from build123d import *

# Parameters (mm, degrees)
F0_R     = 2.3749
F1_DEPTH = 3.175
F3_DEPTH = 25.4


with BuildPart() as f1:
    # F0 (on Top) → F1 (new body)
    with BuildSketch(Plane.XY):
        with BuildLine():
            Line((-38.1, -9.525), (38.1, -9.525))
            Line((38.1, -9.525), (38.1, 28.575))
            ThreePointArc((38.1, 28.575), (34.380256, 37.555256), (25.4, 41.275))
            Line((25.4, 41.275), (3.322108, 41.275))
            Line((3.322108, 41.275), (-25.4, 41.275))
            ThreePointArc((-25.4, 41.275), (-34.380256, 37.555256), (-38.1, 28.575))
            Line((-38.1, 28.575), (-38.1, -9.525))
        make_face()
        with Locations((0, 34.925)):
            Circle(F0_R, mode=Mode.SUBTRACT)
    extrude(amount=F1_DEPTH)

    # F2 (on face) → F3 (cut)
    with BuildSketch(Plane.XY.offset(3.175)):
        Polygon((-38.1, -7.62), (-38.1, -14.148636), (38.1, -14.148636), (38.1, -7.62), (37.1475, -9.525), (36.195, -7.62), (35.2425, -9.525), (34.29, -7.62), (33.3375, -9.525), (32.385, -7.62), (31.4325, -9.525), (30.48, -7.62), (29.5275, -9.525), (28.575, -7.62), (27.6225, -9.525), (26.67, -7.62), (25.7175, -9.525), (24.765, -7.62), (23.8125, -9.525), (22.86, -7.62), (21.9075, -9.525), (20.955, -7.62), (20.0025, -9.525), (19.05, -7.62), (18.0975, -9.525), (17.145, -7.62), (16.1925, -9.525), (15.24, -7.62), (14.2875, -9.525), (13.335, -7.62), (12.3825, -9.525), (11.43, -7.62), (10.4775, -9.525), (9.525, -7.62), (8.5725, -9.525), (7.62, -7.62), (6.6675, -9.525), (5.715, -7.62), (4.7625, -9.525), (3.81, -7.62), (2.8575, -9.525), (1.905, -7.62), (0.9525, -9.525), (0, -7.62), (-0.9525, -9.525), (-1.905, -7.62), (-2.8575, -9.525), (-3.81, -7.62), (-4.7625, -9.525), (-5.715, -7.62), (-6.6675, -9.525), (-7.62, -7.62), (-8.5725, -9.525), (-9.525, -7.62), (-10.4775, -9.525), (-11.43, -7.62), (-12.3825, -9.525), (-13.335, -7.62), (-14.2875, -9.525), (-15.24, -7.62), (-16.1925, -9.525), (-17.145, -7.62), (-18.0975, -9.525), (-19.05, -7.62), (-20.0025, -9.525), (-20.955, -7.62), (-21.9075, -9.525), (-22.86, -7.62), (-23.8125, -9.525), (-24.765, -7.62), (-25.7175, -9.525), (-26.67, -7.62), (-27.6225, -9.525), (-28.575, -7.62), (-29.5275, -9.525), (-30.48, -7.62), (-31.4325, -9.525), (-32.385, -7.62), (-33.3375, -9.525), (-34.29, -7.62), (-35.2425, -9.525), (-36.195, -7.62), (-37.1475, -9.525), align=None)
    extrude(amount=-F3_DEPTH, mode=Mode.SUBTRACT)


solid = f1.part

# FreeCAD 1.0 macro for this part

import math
import FreeCAD as App
import Part
import Sketcher

V = App.Vector
Q = App.Units.Quantity


def add_polygon(sketch, points):
    """Adds a closed chain of lines whose ends are joined by coincident constraints."""
    first, n = sketch.GeometryCount, len(points)
    for a, b in zip(points, points[1:] + points[:1]):
        sketch.addGeometry(Part.LineSegment(App.Vector(*a, 0), App.Vector(*b, 0)), False)
    for i in range(n):
        sketch.addConstraint(Sketcher.Constraint("Coincident", first + i, 2, first + (i + 1) % n, 1))

doc = App.newDocument("Part")
params = doc.addObject("Spreadsheet::Sheet", "Params")
for row, (alias, value) in enumerate([
    ("sketch1_radius", "0.5 in"),
    ("sketch1_width", "3 in"),
    ("sketch1_diameter", "0.187 in"),
    ("sketch1_height", "1.5 in"),
    ("pad1_length", "0.125 in"),
    ("sketch2_width", "3 in"),
    ("pocket1_length", "1 in"),
], start=1):
    params.set(f"A{row}", alias)
    params.set(f"B{row}", "=" + value)
    params.setAlias(f"B{row}", alias)

body = doc.addObject("PartDesign::Body", "Body")

sketch1 = doc.addObject("Sketcher::SketchObject", "Sketch")
body.addObject(sketch1)
sketch1.AttachmentSupport = (doc.XY_Plane, [""])
sketch1.MapMode = "FlatFace"
sketch1.addGeometry([
    Part.LineSegment(V(-38.1, -9.5, 0), V(38.1, -9.5, 0)),
    Part.LineSegment(V(38.1, -9.5, 0), V(38.1, 28.6, 0)),
    Part.ArcOfCircle(Part.Circle(V(25.4, 28.6, 0), V(0, 0, 1), 12.7), math.radians(0), math.radians(90)),
    Part.LineSegment(V(25.4, 41.3, 0), V(-25.4, 41.3, 0)),
    Part.ArcOfCircle(Part.Circle(V(-25.4, 28.6, 0), V(0, 0, 1), 12.7), math.radians(90), math.radians(180)),
    Part.LineSegment(V(-38.1, 28.6, 0), V(-38.1, -9.5, 0)),
    Part.Circle(V(0, 34.9, 0), V(0, 0, 1), 2.4),
], False)
sketch1.addConstraint([
    Sketcher.Constraint("Coincident", 0, 2, 1, 1),
    Sketcher.Constraint("Tangent", 1, 2, 2, 1),
    Sketcher.Constraint("Tangent", 2, 2, 3, 1),
    Sketcher.Constraint("Tangent", 3, 2, 4, 1),
    Sketcher.Constraint("Tangent", 4, 2, 5, 1),
    Sketcher.Constraint("Coincident", 5, 2, 0, 1),
    Sketcher.Constraint("Horizontal", 0),
    Sketcher.Constraint("Vertical", 1),
    Sketcher.Constraint("Horizontal", 3),
    Sketcher.Constraint("Vertical", 5),
    Sketcher.Constraint("Equal", 2, 4),
    Sketcher.Constraint("PointOnObject", 6, 3, -2),
    Sketcher.Constraint("Radius", 2, Q("0.5 in")),
    Sketcher.Constraint("DistanceX", 0, 1, 0, 2, Q("3 in")),
    Sketcher.Constraint("Diameter", 6, Q("0.187 in")),
    Sketcher.Constraint("DistanceY", 1, 1, 1, 2, Q("1.5 in")),
    Sketcher.Constraint("DistanceX", -1, 1, 2, 3, Q("1 in")),
    Sketcher.Constraint("DistanceY", 2, 3, 6, 3, Q("0.25 in")),
    Sketcher.Constraint("DistanceY", -1, 1, 2, 3, Q("1.125 in")),
])
sketch1.setExpression("Constraints[12]", "Params.sketch1_radius")
sketch1.setExpression("Constraints[13]", "Params.sketch1_width")
sketch1.setExpression("Constraints[14]", "Params.sketch1_diameter")
sketch1.setExpression("Constraints[15]", "Params.sketch1_height")
pad1 = doc.addObject("PartDesign::Pad", "Pad")
body.addObject(pad1)
pad1.Profile = sketch1
pad1.setExpression("Length", "Params.pad1_length")

sketch2 = doc.addObject("Sketcher::SketchObject", "Sketch001")
body.addObject(sketch2)
sketch2.AttachmentSupport = (doc.XY_Plane, [""])
sketch2.MapMode = "FlatFace"
sketch2.AttachmentOffset = App.Placement(V(0, 0, 0.125 * 25.4), App.Rotation())
add_polygon(sketch2, [(-38.1, -7.6), (-38.1, -14.1), (38.1, -14.1), (38.1, -7.6), (37.1, -9.5), (36.2, -7.6), (35.2, -9.5), (34.3, -7.6), (33.3, -9.5), (32.4, -7.6), (31.4, -9.5), (30.5, -7.6), (29.5, -9.5), (28.6, -7.6), (27.6, -9.5), (26.7, -7.6), (25.7, -9.5), (24.8, -7.6), (23.8, -9.5), (22.9, -7.6), (21.9, -9.5), (21, -7.6), (20, -9.5), (19.1, -7.6), (18.1, -9.5), (17.1, -7.6), (16.2, -9.5), (15.2, -7.6), (14.3, -9.5), (13.3, -7.6), (12.4, -9.5), (11.4, -7.6), (10.5, -9.5), (9.5, -7.6), (8.6, -9.5), (7.6, -7.6), (6.7, -9.5), (5.7, -7.6), (4.8, -9.5), (3.8, -7.6), (2.9, -9.5), (1.9, -7.6), (1, -9.5), (0, -7.6), (-1, -9.5), (-1.9, -7.6), (-2.9, -9.5), (-3.8, -7.6), (-4.8, -9.5), (-5.7, -7.6), (-6.7, -9.5), (-7.6, -7.6), (-8.6, -9.5), (-9.5, -7.6), (-10.5, -9.5), (-11.4, -7.6), (-12.4, -9.5), (-13.3, -7.6), (-14.3, -9.5), (-15.2, -7.6), (-16.2, -9.5), (-17.1, -7.6), (-18.1, -9.5), (-19.1, -7.6), (-20, -9.5), (-21, -7.6), (-21.9, -9.5), (-22.9, -7.6), (-23.8, -9.5), (-24.8, -7.6), (-25.7, -9.5), (-26.7, -7.6), (-27.6, -9.5), (-28.6, -7.6), (-29.5, -9.5), (-30.5, -7.6), (-31.4, -9.5), (-32.4, -7.6), (-33.3, -9.5), (-34.3, -7.6), (-35.2, -9.5), (-36.2, -7.6), (-37.1, -9.5)])
sketch2.addConstraint([
    Sketcher.Constraint("Vertical", 0),
    Sketcher.Constraint("Horizontal", 1),
    Sketcher.Constraint("Vertical", 2),
    Sketcher.Constraint("Symmetric", 41, 2, 43, 2, -2),
    Sketcher.Constraint("Symmetric", 40, 2, 44, 2, -2),
    Sketcher.Constraint("Symmetric", 39, 2, 45, 2, -2),
    Sketcher.Constraint("Symmetric", 38, 2, 46, 2, -2),
    Sketcher.Constraint("Symmetric", 37, 2, 47, 2, -2),
    Sketcher.Constraint("Symmetric", 36, 2, 48, 2, -2),
    Sketcher.Constraint("Symmetric", 35, 2, 49, 2, -2),
    Sketcher.Constraint("Symmetric", 34, 2, 50, 2, -2),
    Sketcher.Constraint("Symmetric", 33, 2, 51, 2, -2),
    Sketcher.Constraint("Symmetric", 32, 2, 52, 2, -2),
    Sketcher.Constraint("Symmetric", 31, 2, 53, 2, -2),
    Sketcher.Constraint("Symmetric", 30, 2, 54, 2, -2),
    Sketcher.Constraint("Symmetric", 29, 2, 55, 2, -2),
    Sketcher.Constraint("Symmetric", 28, 2, 56, 2, -2),
    Sketcher.Constraint("Symmetric", 27, 2, 57, 2, -2),
    Sketcher.Constraint("Symmetric", 26, 2, 58, 2, -2),
    Sketcher.Constraint("Symmetric", 25, 2, 59, 2, -2),
    Sketcher.Constraint("Symmetric", 24, 2, 60, 2, -2),
    Sketcher.Constraint("Symmetric", 23, 2, 61, 2, -2),
    Sketcher.Constraint("Symmetric", 22, 2, 62, 2, -2),
    Sketcher.Constraint("Symmetric", 21, 2, 63, 2, -2),
    Sketcher.Constraint("Symmetric", 20, 2, 64, 2, -2),
    Sketcher.Constraint("Symmetric", 19, 2, 65, 2, -2),
    Sketcher.Constraint("Symmetric", 18, 2, 66, 2, -2),
    Sketcher.Constraint("Symmetric", 17, 2, 67, 2, -2),
    Sketcher.Constraint("Symmetric", 16, 2, 68, 2, -2),
    Sketcher.Constraint("Symmetric", 15, 2, 69, 2, -2),
    Sketcher.Constraint("Symmetric", 14, 2, 70, 2, -2),
    Sketcher.Constraint("Symmetric", 13, 2, 71, 2, -2),
    Sketcher.Constraint("Symmetric", 12, 2, 72, 2, -2),
    Sketcher.Constraint("Symmetric", 11, 2, 73, 2, -2),
    Sketcher.Constraint("Symmetric", 10, 2, 74, 2, -2),
    Sketcher.Constraint("Symmetric", 9, 2, 75, 2, -2),
    Sketcher.Constraint("Symmetric", 8, 2, 76, 2, -2),
    Sketcher.Constraint("Symmetric", 7, 2, 77, 2, -2),
    Sketcher.Constraint("Symmetric", 6, 2, 78, 2, -2),
    Sketcher.Constraint("Symmetric", 5, 2, 79, 2, -2),
    Sketcher.Constraint("Symmetric", 4, 2, 80, 2, -2),
    Sketcher.Constraint("Symmetric", 3, 2, 81, 2, -2),
    Sketcher.Constraint("Symmetric", 2, 2, 82, 2, -2),
    Sketcher.Constraint("PointOnObject", 42, 2, -2),
    Sketcher.Constraint("Parallel", 3, 5),
    Sketcher.Constraint("Parallel", 4, 6),
    Sketcher.Constraint("Parallel", 5, 7),
    Sketcher.Constraint("Parallel", 6, 8),
    Sketcher.Constraint("Parallel", 7, 9),
    Sketcher.Constraint("Parallel", 8, 10),
    Sketcher.Constraint("Parallel", 9, 11),
    Sketcher.Constraint("Parallel", 10, 12),
    Sketcher.Constraint("Parallel", 11, 13),
    Sketcher.Constraint("Parallel", 12, 14),
    Sketcher.Constraint("Parallel", 13, 15),
    Sketcher.Constraint("Parallel", 14, 16),
    Sketcher.Constraint("Parallel", 15, 17),
    Sketcher.Constraint("Parallel", 16, 18),
    Sketcher.Constraint("Parallel", 17, 19),
    Sketcher.Constraint("Parallel", 18, 20),
    Sketcher.Constraint("Parallel", 19, 21),
    Sketcher.Constraint("Parallel", 20, 22),
    Sketcher.Constraint("Parallel", 21, 23),
    Sketcher.Constraint("Parallel", 22, 24),
    Sketcher.Constraint("Parallel", 23, 25),
    Sketcher.Constraint("Parallel", 24, 26),
    Sketcher.Constraint("Parallel", 25, 27),
    Sketcher.Constraint("Parallel", 26, 28),
    Sketcher.Constraint("Parallel", 27, 29),
    Sketcher.Constraint("Parallel", 28, 30),
    Sketcher.Constraint("Parallel", 29, 31),
    Sketcher.Constraint("Parallel", 30, 32),
    Sketcher.Constraint("Parallel", 31, 33),
    Sketcher.Constraint("Parallel", 32, 34),
    Sketcher.Constraint("Parallel", 33, 35),
    Sketcher.Constraint("Parallel", 34, 36),
    Sketcher.Constraint("Parallel", 35, 37),
    Sketcher.Constraint("Parallel", 36, 38),
    Sketcher.Constraint("Parallel", 37, 39),
    Sketcher.Constraint("Parallel", 38, 40),
    Sketcher.Constraint("Parallel", 39, 41),
    Sketcher.Constraint("Parallel", 40, 42),
    Sketcher.Constraint("Parallel", 41, 43),
    Sketcher.Constraint("Horizontal", 2, 2, 4, 2),
    Sketcher.Constraint("Horizontal", 3, 2, 5, 2),
    Sketcher.Constraint("Horizontal", 4, 2, 6, 2),
    Sketcher.Constraint("Horizontal", 5, 2, 7, 2),
    Sketcher.Constraint("Horizontal", 6, 2, 8, 2),
    Sketcher.Constraint("Horizontal", 7, 2, 9, 2),
    Sketcher.Constraint("Horizontal", 8, 2, 10, 2),
    Sketcher.Constraint("Horizontal", 9, 2, 11, 2),
    Sketcher.Constraint("Horizontal", 10, 2, 12, 2),
    Sketcher.Constraint("Horizontal", 11, 2, 13, 2),
    Sketcher.Constraint("Horizontal", 12, 2, 14, 2),
    Sketcher.Constraint("Horizontal", 13, 2, 15, 2),
    Sketcher.Constraint("Horizontal", 14, 2, 16, 2),
    Sketcher.Constraint("Horizontal", 15, 2, 17, 2),
    Sketcher.Constraint("Horizontal", 16, 2, 18, 2),
    Sketcher.Constraint("Horizontal", 17, 2, 19, 2),
    Sketcher.Constraint("Horizontal", 18, 2, 20, 2),
    Sketcher.Constraint("Horizontal", 19, 2, 21, 2),
    Sketcher.Constraint("Horizontal", 20, 2, 22, 2),
    Sketcher.Constraint("Horizontal", 21, 2, 23, 2),
    Sketcher.Constraint("Horizontal", 22, 2, 24, 2),
    Sketcher.Constraint("Horizontal", 23, 2, 25, 2),
    Sketcher.Constraint("Horizontal", 24, 2, 26, 2),
    Sketcher.Constraint("Horizontal", 25, 2, 27, 2),
    Sketcher.Constraint("Horizontal", 26, 2, 28, 2),
    Sketcher.Constraint("Horizontal", 27, 2, 29, 2),
    Sketcher.Constraint("Horizontal", 28, 2, 30, 2),
    Sketcher.Constraint("Horizontal", 29, 2, 31, 2),
    Sketcher.Constraint("Horizontal", 30, 2, 32, 2),
    Sketcher.Constraint("Horizontal", 31, 2, 33, 2),
    Sketcher.Constraint("Horizontal", 32, 2, 34, 2),
    Sketcher.Constraint("Horizontal", 33, 2, 35, 2),
    Sketcher.Constraint("Horizontal", 34, 2, 36, 2),
    Sketcher.Constraint("Horizontal", 35, 2, 37, 2),
    Sketcher.Constraint("Horizontal", 36, 2, 38, 2),
    Sketcher.Constraint("Horizontal", 37, 2, 39, 2),
    Sketcher.Constraint("Horizontal", 38, 2, 40, 2),
    Sketcher.Constraint("Horizontal", 39, 2, 41, 2),
    Sketcher.Constraint("Horizontal", 40, 2, 42, 2),
    Sketcher.Constraint("DistanceX", 1, 1, 1, 2, Q("3 in")),
    Sketcher.Constraint("DistanceY", 2, 2, -1, 1, Q("0.3 in")),
    Sketcher.Constraint("DistanceY", 3, 2, -1, 1, Q("0.375 in")),
    Sketcher.Constraint("DistanceY", 0, 2, 0, 1, 6.528636),
])
sketch2.setExpression("Constraints[205]", "Params.sketch2_width")
pocket1 = doc.addObject("PartDesign::Pocket", "Pocket")
body.addObject(pocket1)
pocket1.Profile = sketch2
pocket1.setExpression("Length", "Params.pocket1_length")

doc.recompute()
